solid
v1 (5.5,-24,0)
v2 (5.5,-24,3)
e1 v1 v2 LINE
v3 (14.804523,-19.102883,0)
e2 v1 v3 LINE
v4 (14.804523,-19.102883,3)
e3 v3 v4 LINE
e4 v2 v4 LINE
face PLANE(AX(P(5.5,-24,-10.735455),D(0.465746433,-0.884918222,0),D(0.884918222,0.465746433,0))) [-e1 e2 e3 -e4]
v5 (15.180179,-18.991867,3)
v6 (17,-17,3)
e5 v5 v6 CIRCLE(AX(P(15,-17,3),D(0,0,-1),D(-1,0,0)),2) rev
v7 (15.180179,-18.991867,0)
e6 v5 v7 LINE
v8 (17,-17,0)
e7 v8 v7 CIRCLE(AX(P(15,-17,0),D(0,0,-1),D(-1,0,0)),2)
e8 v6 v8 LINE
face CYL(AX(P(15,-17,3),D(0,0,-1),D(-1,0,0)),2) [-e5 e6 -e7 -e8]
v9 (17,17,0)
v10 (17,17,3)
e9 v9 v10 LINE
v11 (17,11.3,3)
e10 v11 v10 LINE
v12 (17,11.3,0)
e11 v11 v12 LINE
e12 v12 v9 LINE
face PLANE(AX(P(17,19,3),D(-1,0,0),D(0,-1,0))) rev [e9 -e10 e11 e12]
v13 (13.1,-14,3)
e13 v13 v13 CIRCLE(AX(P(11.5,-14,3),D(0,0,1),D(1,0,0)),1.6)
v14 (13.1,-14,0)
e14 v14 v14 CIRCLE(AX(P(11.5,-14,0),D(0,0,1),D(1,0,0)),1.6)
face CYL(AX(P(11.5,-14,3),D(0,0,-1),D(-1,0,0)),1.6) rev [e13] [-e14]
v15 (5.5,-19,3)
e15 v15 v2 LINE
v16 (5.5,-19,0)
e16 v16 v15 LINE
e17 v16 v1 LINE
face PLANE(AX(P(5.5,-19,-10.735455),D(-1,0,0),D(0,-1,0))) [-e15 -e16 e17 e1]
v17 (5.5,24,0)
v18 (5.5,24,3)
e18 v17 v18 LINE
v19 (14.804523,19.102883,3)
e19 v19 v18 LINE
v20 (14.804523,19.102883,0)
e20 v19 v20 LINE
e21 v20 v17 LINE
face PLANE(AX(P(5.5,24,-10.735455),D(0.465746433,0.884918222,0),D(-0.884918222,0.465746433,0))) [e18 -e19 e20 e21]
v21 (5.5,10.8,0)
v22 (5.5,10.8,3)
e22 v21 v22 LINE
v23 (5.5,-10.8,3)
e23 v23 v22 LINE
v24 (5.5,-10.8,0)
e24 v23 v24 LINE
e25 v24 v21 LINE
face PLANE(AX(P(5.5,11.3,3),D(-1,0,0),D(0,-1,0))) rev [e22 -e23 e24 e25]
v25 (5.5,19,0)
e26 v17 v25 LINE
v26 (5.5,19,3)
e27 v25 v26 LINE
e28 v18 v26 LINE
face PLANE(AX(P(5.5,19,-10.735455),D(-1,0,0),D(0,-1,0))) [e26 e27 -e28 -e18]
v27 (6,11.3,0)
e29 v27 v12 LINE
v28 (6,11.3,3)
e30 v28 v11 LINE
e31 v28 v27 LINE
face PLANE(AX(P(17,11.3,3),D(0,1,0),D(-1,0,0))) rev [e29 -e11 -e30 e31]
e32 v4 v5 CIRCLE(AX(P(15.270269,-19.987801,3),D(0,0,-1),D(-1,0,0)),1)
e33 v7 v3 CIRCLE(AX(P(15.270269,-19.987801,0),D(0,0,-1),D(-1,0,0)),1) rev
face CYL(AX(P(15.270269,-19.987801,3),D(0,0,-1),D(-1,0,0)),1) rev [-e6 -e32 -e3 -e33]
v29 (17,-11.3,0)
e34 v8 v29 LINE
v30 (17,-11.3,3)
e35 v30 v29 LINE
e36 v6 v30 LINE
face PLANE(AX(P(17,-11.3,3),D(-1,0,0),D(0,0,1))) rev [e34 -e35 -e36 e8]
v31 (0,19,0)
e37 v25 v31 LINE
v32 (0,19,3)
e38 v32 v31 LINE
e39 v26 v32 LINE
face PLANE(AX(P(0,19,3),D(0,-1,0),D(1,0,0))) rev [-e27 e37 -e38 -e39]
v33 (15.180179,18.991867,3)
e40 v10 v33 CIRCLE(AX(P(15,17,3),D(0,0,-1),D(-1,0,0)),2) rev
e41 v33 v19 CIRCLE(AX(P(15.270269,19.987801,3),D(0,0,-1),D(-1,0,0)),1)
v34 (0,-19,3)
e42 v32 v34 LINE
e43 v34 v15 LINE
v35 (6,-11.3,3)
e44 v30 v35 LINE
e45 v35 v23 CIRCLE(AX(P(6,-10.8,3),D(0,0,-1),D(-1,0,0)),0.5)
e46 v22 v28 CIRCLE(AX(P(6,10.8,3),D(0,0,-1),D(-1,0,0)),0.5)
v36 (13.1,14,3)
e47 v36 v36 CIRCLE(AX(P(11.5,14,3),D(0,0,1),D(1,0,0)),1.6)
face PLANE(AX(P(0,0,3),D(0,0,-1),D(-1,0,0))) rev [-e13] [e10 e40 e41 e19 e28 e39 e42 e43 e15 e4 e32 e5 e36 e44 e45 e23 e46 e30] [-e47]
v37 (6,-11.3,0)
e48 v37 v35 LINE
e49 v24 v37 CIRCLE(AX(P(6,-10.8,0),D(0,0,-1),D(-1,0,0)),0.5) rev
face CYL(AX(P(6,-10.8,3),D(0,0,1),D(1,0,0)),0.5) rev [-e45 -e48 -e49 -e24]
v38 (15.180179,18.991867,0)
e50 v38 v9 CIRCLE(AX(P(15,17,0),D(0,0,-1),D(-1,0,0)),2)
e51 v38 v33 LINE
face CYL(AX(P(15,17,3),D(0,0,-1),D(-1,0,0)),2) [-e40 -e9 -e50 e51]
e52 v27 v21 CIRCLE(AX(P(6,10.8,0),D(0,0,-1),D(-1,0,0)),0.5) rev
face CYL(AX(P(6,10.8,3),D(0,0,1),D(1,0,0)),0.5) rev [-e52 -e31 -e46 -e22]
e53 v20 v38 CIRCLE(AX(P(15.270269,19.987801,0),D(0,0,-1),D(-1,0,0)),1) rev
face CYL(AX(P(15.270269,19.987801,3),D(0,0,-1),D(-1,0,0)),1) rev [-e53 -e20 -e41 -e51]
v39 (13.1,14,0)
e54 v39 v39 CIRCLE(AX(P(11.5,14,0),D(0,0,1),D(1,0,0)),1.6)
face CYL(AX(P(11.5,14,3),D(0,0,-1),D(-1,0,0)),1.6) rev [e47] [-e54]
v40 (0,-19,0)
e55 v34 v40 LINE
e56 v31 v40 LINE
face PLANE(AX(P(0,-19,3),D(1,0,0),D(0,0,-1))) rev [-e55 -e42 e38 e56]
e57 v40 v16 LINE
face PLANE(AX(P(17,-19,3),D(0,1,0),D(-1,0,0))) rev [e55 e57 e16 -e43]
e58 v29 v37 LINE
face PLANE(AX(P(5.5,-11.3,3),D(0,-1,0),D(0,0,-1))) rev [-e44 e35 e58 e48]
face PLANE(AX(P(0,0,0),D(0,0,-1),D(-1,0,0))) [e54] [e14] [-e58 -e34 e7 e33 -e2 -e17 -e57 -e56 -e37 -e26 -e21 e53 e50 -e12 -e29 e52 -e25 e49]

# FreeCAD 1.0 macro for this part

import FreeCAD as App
import Part
import Sketcher
Q = App.Units.Quantity


def edges_at(feature, points):
    """Names of the edges that pass closest to the given points."""
    edges = feature.Shape.Edges
    near = lambda p: min(range(len(edges)), key=lambda i: edges[i].distToShape(Part.Vertex(*p))[0])
    return sorted({f"Edge{near(p) + 1}" for p in points})

doc = App.newDocument("Part")
params = doc.addObject("Spreadsheet::Sheet", "Params")
for row, (alias, value) in enumerate([
    ("sketch1_diameter", "3.2 mm"),
    ("sketch1_width", "17 mm"),
    ("sketch1_height", "38 mm"),
    ("sketch1_width2", "11.5 mm"),
    ("sketch1_height2", "7.7 mm"),
    ("pad1_length", "3 mm"),
    ("fillet_radius", "0.5 mm"),
    ("fillet2_radius", "2 mm"),
    ("sketch2_height", "5 mm"),
    ("sketch2_width", "9.5 mm"),
    ("pad2_length", "3 mm"),
    ("fillet3_radius", "1 mm"),
], start=1):
    params.set(f"A{row}", alias)
    params.set(f"B{row}", "=" + value)
    params.setAlias(f"B{row}", alias)

body = doc.addObject("PartDesign::Body", "Body")

sketch1 = body.newObject("Sketcher::SketchObject", "Sketch")
sketch1.AttachmentSupport = (doc.getObject("XY_Plane"), [""])
sketch1.MapMode = "FlatFace"
sketch1.addGeometry([
    Part.LineSegment(App.Vector(0, 19, 0), App.Vector(0, -19, 0)),
    Part.LineSegment(App.Vector(0, -19, 0), App.Vector(17, -19, 0)),
    Part.LineSegment(App.Vector(17, -19, 0), App.Vector(17, -11.3, 0)),
    Part.LineSegment(App.Vector(17, -11.3, 0), App.Vector(5.5, -11.3, 0)),
    Part.LineSegment(App.Vector(5.5, -11.3, 0), App.Vector(5.5, 11.3, 0)),
    Part.LineSegment(App.Vector(5.5, 11.3, 0), App.Vector(17, 11.3, 0)),
    Part.LineSegment(App.Vector(17, 11.3, 0), App.Vector(17, 19, 0)),
    Part.LineSegment(App.Vector(17, 19, 0), App.Vector(0, 19, 0)),
    Part.Circle(App.Vector(11.5, -14, 0), App.Vector(0, 0, 1), 1.6),
    Part.Circle(App.Vector(11.5, 14, 0), App.Vector(0, 0, 1), 1.6),
], False)
sketch1.addConstraint([
    Sketcher.Constraint("Coincident", 0, 2, 1, 1),
    Sketcher.Constraint("Coincident", 1, 2, 2, 1),
    Sketcher.Constraint("Coincident", 2, 2, 3, 1),
    Sketcher.Constraint("Coincident", 3, 2, 4, 1),
    Sketcher.Constraint("Coincident", 4, 2, 5, 1),
    Sketcher.Constraint("Coincident", 5, 2, 6, 1),
    Sketcher.Constraint("Coincident", 6, 2, 7, 1),
    Sketcher.Constraint("Coincident", 7, 2, 0, 1),
    Sketcher.Constraint("Vertical", 0),
    Sketcher.Constraint("Horizontal", 1),
    Sketcher.Constraint("Vertical", 2),
    Sketcher.Constraint("Horizontal", 3),
    Sketcher.Constraint("Vertical", 4),
    Sketcher.Constraint("Horizontal", 5),
    Sketcher.Constraint("Vertical", 6),
    Sketcher.Constraint("Horizontal", 7),
    Sketcher.Constraint("Equal", 8, 9),
    Sketcher.Constraint("Symmetric", 0, 2, 7, 2, -1, 1),
    Sketcher.Constraint("Symmetric", 8, 3, 9, 3, -1),
    Sketcher.Constraint("Symmetric", 2, 2, 5, 2, -1),
    Sketcher.Constraint("Diameter", 8, Q("3.2 mm")),
    Sketcher.Constraint("DistanceX", 1, 1, 1, 2, Q("17 mm")),
    Sketcher.Constraint("DistanceY", 0, 2, 0, 1, Q("38 mm")),
    Sketcher.Constraint("DistanceX", 3, 2, 3, 1, Q("11.5 mm")),
    Sketcher.Constraint("DistanceY", 2, 1, 2, 2, Q("7.7 mm")),
    Sketcher.Constraint("DistanceY", 8, 3, -1, 1, Q("14 mm")),
    Sketcher.Constraint("DistanceX", 3, 2, 8, 3, Q("6 mm")),
])
sketch1.setExpression("Constraints[20]", "Params.sketch1_diameter")
sketch1.setExpression("Constraints[21]", "Params.sketch1_width")
sketch1.setExpression("Constraints[22]", "Params.sketch1_height")
sketch1.setExpression("Constraints[23]", "Params.sketch1_width2")
sketch1.setExpression("Constraints[24]", "Params.sketch1_height2")
pad1 = body.newObject("PartDesign::Pad", "Pad")
pad1.Profile = sketch1
pad1.setExpression("Length", "Params.pad1_length")
doc.recompute()

fillet = body.newObject("PartDesign::Fillet", "Fillet")
fillet.Base = (pad1, edges_at(pad1, [(5.5, 11.3, 1.5), (5.5, -11.3, 1.5)]))
fillet.setExpression("Radius", "Params.fillet_radius")
doc.recompute()

fillet2 = body.newObject("PartDesign::Fillet", "Fillet001")
fillet2.Base = (fillet, edges_at(fillet, [(17, 19, 1.5), (17, -19, 1.5)]))
fillet2.setExpression("Radius", "Params.fillet2_radius")

sketch2 = body.newObject("Sketcher::SketchObject", "Sketch001")
sketch2.AttachmentSupport = (doc.getObject("XY_Plane"), [""])
sketch2.MapMode = "FlatFace"
sketch2.AttachmentOffset = App.Placement(App.Vector(0, 0, 3), App.Rotation())
sketch2.addGeometry([
    Part.LineSegment(App.Vector(6, 24, 0), App.Vector(6, 19, 0)),
    Part.LineSegment(App.Vector(6, 19, 0), App.Vector(15, 19, 0)),
    Part.LineSegment(App.Vector(15, 19, 0), App.Vector(6, 24, 0)),
    Part.LineSegment(App.Vector(6, -19, 0), App.Vector(6, -24, 0)),
    Part.LineSegment(App.Vector(6, -24, 0), App.Vector(15, -19, 0)),
    Part.LineSegment(App.Vector(15, -19, 0), App.Vector(6, -19, 0)),
], False)
sketch2.addConstraint([
    Sketcher.Constraint("Coincident", 0, 2, 1, 1),
    Sketcher.Constraint("Coincident", 1, 2, 2, 1),
    Sketcher.Constraint("Coincident", 2, 2, 0, 1),
    Sketcher.Constraint("Coincident", 3, 2, 4, 1),
    Sketcher.Constraint("Coincident", 4, 2, 5, 1),
    Sketcher.Constraint("Coincident", 5, 2, 3, 1),
    Sketcher.Constraint("Vertical", 0),
    Sketcher.Constraint("Horizontal", 1),
    Sketcher.Constraint("Vertical", 3),
    Sketcher.Constraint("Horizontal", 5),
    Sketcher.Constraint("Symmetric", 2, 2, 3, 2, -1),
    Sketcher.Constraint("Symmetric", 1, 2, 4, 2, -1),
    Sketcher.Constraint("DistanceY", 0, 2, 0, 1, Q("5 mm")),
    Sketcher.Constraint("DistanceX", 1, 1, 1, 2, Q("9.5 mm")),
    Sketcher.Constraint("DistanceY", -1, 1, 0, 2, Q("19 mm")),
    Sketcher.Constraint("DistanceX", -1, 1, 1, 2, Q("15 mm")),
])
sketch2.setExpression("Constraints[12]", "Params.sketch2_height")
sketch2.setExpression("Constraints[13]", "Params.sketch2_width")
pad2 = body.newObject("PartDesign::Pad", "Pad001")
pad2.Profile = sketch2
pad2.setExpression("Length", "Params.pad2_length")
pad2.Reversed = True
doc.recompute()

fillet3 = body.newObject("PartDesign::Fillet", "Fillet002")
fillet3.Base = (pad2, edges_at(pad2, [(15, 19, 1.5), (15, -19, 1.5)]))
fillet3.setExpression("Radius", "Params.fillet3_radius")

doc.recompute()
